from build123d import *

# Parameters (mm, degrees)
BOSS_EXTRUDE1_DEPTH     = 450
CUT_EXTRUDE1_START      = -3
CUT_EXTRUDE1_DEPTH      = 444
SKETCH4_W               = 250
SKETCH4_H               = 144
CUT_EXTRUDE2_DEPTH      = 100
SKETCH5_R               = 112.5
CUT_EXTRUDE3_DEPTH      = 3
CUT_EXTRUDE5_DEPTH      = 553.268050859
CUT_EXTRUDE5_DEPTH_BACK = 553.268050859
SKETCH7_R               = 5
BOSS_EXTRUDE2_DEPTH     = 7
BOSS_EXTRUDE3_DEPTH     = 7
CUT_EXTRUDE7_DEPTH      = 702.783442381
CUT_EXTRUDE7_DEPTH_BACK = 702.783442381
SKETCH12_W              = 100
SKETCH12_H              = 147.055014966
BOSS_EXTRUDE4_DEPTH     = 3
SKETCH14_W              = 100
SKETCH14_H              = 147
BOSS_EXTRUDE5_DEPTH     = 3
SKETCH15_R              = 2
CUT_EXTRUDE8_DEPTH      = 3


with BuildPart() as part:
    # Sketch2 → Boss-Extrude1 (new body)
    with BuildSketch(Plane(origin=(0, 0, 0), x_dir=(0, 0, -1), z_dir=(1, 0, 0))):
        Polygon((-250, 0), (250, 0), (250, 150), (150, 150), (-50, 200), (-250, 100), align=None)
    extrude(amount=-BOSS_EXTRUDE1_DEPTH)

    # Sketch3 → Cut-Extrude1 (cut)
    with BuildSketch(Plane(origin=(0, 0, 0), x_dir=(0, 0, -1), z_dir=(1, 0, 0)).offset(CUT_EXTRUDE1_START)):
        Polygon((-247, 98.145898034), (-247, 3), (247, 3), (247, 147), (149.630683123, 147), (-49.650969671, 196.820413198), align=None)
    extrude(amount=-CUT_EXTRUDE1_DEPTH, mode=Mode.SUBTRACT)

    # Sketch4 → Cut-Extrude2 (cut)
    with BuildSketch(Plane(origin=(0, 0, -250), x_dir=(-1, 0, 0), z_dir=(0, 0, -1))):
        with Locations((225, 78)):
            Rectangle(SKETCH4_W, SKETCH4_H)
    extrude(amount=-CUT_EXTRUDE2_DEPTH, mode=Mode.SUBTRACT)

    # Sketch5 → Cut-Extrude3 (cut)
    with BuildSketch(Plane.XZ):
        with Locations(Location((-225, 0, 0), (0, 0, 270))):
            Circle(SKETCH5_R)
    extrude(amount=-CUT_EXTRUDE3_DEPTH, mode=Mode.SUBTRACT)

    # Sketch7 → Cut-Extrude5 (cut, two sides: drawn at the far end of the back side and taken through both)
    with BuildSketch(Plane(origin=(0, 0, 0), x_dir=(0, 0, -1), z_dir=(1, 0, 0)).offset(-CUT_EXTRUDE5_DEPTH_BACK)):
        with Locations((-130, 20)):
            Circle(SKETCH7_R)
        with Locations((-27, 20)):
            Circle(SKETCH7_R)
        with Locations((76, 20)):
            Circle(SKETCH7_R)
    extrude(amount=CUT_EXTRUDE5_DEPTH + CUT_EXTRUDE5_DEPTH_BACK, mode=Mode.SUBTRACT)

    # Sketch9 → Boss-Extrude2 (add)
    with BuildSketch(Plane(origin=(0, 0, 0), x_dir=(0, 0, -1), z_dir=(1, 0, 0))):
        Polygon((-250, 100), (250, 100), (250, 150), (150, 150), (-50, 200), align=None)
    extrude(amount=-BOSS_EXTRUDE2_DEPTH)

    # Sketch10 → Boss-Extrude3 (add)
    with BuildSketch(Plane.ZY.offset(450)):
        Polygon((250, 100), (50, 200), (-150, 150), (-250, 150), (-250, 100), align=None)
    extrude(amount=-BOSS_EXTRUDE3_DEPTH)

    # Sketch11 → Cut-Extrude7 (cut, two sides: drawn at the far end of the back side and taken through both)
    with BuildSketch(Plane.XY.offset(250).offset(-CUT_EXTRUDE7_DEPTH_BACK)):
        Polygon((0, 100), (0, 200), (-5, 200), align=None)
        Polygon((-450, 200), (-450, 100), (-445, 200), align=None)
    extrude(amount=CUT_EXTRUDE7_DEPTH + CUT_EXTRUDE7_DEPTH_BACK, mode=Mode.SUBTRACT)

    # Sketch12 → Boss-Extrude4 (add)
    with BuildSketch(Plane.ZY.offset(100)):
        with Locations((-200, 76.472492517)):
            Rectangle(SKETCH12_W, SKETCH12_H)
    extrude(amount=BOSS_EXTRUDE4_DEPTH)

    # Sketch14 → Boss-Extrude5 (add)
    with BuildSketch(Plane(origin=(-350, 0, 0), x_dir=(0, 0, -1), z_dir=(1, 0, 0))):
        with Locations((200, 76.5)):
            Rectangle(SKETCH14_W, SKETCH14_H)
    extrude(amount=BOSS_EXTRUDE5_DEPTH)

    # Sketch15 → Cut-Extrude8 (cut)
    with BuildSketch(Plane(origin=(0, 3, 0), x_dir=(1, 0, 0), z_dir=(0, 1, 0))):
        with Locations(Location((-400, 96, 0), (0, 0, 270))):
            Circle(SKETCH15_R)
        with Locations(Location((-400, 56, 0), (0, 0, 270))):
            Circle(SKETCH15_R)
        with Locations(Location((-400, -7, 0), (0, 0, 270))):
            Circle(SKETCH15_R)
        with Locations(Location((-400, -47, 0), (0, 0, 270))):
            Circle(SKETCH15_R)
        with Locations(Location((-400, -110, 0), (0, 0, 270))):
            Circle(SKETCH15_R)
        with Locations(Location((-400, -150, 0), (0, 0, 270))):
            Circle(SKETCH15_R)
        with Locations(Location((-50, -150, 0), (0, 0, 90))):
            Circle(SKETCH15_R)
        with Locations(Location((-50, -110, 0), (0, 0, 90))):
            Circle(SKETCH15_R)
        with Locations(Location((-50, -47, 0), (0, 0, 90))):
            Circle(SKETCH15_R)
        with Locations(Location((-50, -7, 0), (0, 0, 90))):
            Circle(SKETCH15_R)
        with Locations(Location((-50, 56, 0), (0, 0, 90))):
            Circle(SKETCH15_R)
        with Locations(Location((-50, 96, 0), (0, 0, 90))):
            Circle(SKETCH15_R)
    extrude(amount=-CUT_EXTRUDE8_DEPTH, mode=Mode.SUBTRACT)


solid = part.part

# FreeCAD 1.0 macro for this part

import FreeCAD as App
import Part
import Sketcher

V = App.Vector
Q = App.Units.Quantity


def add_polygon(sketch, points):
    """Adds a closed chain of lines whose ends are joined by coincident constraints."""
    first, n = sketch.GeometryCount, len(points)
    for a, b in zip(points, points[1:] + points[:1]):
        sketch.addGeometry(Part.LineSegment(App.Vector(*a, 0), App.Vector(*b, 0)), False)
    for i in range(n):
        sketch.addConstraint(Sketcher.Constraint("Coincident", first + i, 2, first + (i + 1) % n, 1))

doc = App.newDocument("Part")
body = doc.addObject("PartDesign::Body", "Body")

sketch1 = body.newObject("Sketcher::SketchObject", "Sketch")
sketch1.AttachmentSupport = (doc.getObject("YZ_Plane"), [""])
sketch1.MapMode = "FlatFace"
add_polygon(sketch1, [(0, 250), (0, -250), (150, -250), (150, -150), (200, 50), (100, 250)])
sketch1.addConstraint(Sketcher.Constraint("Vertical", 0))
sketch1.addConstraint(Sketcher.Constraint("Horizontal", 1))
sketch1.addConstraint(Sketcher.Constraint("Vertical", 2))
sketch1.addConstraint(Sketcher.Constraint("Horizontal", 5))
sketch1.addConstraint(Sketcher.Constraint("Symmetric", 0, 2, 5, 2, -1, 1))
sketch1.addConstraint(Sketcher.Constraint("Equal", 5, 2))
sketch1.addConstraint(Sketcher.Constraint("DistanceX", 1, 1, 1, 2, Q("150 mm")))
sketch1.addConstraint(Sketcher.Constraint("DistanceX", 5, 2, 5, 1, Q("100 mm")))
sketch1.addConstraint(Sketcher.Constraint("DistanceY", 0, 2, 0, 1, Q("500 mm")))
sketch1.addConstraint(Sketcher.Constraint("DistanceX", -1, 1, 3, 2, Q("200 mm")))
sketch1.addConstraint(Sketcher.Constraint("DistanceY", -1, 1, 3, 2, Q("50 mm")))
pad1 = body.newObject("PartDesign::Pad", "Pad")
pad1.Profile = sketch1
pad1.Length = 450
pad1.Reversed = True

sketch2 = body.newObject("Sketcher::SketchObject", "Sketch001")
sketch2.AttachmentSupport = (doc.getObject("YZ_Plane"), [""])
sketch2.MapMode = "FlatFace"
sketch2.AttachmentOffset = App.Placement(V(0, 0, -3), App.Rotation())
add_polygon(sketch2, [(98.145898, 247), (3, 247), (3, -247), (147, -247), (147, -149.630683), (196.820413, 49.65097)])
sketch2.addConstraint(Sketcher.Constraint("Horizontal", 0))
sketch2.addConstraint(Sketcher.Constraint("Vertical", 1))
sketch2.addConstraint(Sketcher.Constraint("Horizontal", 2))
sketch2.addConstraint(Sketcher.Constraint("Vertical", 3))
sketch2.addConstraint(Sketcher.Constraint("DistanceX", 2, 1, 2, 2, Q("144 mm")))
sketch2.addConstraint(Sketcher.Constraint("DistanceY", 1, 2, 1, 1, Q("494 mm")))
sketch2.addConstraint(Sketcher.Constraint("DistanceX", -1, 1, 0, 2, Q("3 mm")))
sketch2.addConstraint(Sketcher.Constraint("DistanceY", -1, 1, 0, 2, Q("247 mm")))
sketch2.addConstraint(Sketcher.Constraint("DistanceX", 0, 2, 0, 1, Q("95.145898 mm")))
sketch2.addConstraint(Sketcher.Constraint("DistanceY", 3, 1, 3, 2, Q("97.369317 mm")))
sketch2.addConstraint(Sketcher.Constraint("DistanceY", -1, 1, 4, 2, Q("49.65097 mm")))
sketch2.addConstraint(Sketcher.Constraint("Distance", 4, Q("205.414826 mm")))
pocket1 = body.newObject("PartDesign::Pocket", "Pocket")
pocket1.Profile = sketch2
pocket1.Length = 444

sketch3 = body.newObject("Sketcher::SketchObject", "Sketch002")
sketch3.AttachmentSupport = (doc.getObject("XY_Plane"), [""])
sketch3.MapMode = "FlatFace"
sketch3.AttachmentOffset = App.Placement(V(0, 0, -250), App.Rotation())
add_polygon(sketch3, [(-100, 150), (-100, 6), (-350, 6), (-350, 150)])
sketch3.addConstraint(Sketcher.Constraint("Vertical", 0))
sketch3.addConstraint(Sketcher.Constraint("Horizontal", 1))
sketch3.addConstraint(Sketcher.Constraint("Vertical", 2))
sketch3.addConstraint(Sketcher.Constraint("Horizontal", 3))
sketch3.addConstraint(Sketcher.Constraint("DistanceX", 1, 2, 1, 1, Q("250 mm")))
sketch3.addConstraint(Sketcher.Constraint("DistanceY", 0, 2, 0, 1, Q("144 mm")))
sketch3.addConstraint(Sketcher.Constraint("DistanceX", 0, 2, -1, 1, Q("100 mm")))
sketch3.addConstraint(Sketcher.Constraint("DistanceY", -1, 1, 0, 2, Q("6 mm")))
pocket2 = body.newObject("PartDesign::Pocket", "Pocket001")
pocket2.Profile = sketch3
pocket2.Length = 100
pocket2.Reversed = True

sketch4 = body.newObject("Sketcher::SketchObject", "Sketch003")
sketch4.AttachmentSupport = (doc.getObject("XZ_Plane"), [""])
sketch4.MapMode = "FlatFace"
sketch4.addGeometry(Part.Circle(V(-225, 0, 0), V(0, 0, 1), 112.5), False)
sketch4.addConstraint(Sketcher.Constraint("PointOnObject", 0, 3, -1))
sketch4.addConstraint(Sketcher.Constraint("Diameter", 0, Q("225 mm")))
sketch4.addConstraint(Sketcher.Constraint("DistanceX", 0, 3, -1, 1, Q("225 mm")))
pocket3 = body.newObject("PartDesign::Pocket", "Pocket002")
pocket3.Profile = sketch4
pocket3.Length = 3

sketch5 = body.newObject("Sketcher::SketchObject", "Sketch004")
sketch5.AttachmentSupport = (doc.getObject("YZ_Plane"), [""])
sketch5.MapMode = "FlatFace"
sketch5.addGeometry(Part.Circle(V(20, 130, 0), V(0, 0, 1), 5), False)
sketch5.addGeometry(Part.Circle(V(20, 27, 0), V(0, 0, 1), 5), False)
sketch5.addGeometry(Part.Circle(V(20, -76, 0), V(0, 0, 1), 5), False)
sketch5.addConstraint(Sketcher.Constraint("Equal", 0, 1))
sketch5.addConstraint(Sketcher.Constraint("Equal", 1, 2))
sketch5.addConstraint(Sketcher.Constraint("Vertical", 0, 3, 1, 3))
sketch5.addConstraint(Sketcher.Constraint("Vertical", 1, 3, 2, 3))
sketch5.addConstraint(Sketcher.Constraint("Diameter", 0, Q("10 mm")))
sketch5.addConstraint(Sketcher.Constraint("DistanceX", -1, 1, 0, 3, Q("20 mm")))
sketch5.addConstraint(Sketcher.Constraint("DistanceY", -1, 1, 0, 3, Q("130 mm")))
sketch5.addConstraint(Sketcher.Constraint("DistanceY", -1, 1, 1, 3, Q("27 mm")))
sketch5.addConstraint(Sketcher.Constraint("DistanceY", 2, 3, -1, 1, Q("76 mm")))
pocket4 = body.newObject("PartDesign::Pocket", "Pocket003")
pocket4.Profile = sketch5
pocket4.Type = "ThroughAll"
pocket4.Midplane = True

sketch6 = body.newObject("Sketcher::SketchObject", "Sketch005")
sketch6.AttachmentSupport = (doc.getObject("YZ_Plane"), [""])
sketch6.MapMode = "FlatFace"
add_polygon(sketch6, [(100, 250), (100, -250), (150, -250), (150, -150), (200, 50)])
sketch6.addConstraint(Sketcher.Constraint("Vertical", 0))
sketch6.addConstraint(Sketcher.Constraint("Horizontal", 1))
sketch6.addConstraint(Sketcher.Constraint("Vertical", 2))
sketch6.addConstraint(Sketcher.Constraint("DistanceX", 1, 1, 1, 2, Q("50 mm")))
sketch6.addConstraint(Sketcher.Constraint("DistanceY", 0, 2, 0, 1, Q("500 mm")))
sketch6.addConstraint(Sketcher.Constraint("DistanceY", 2, 1, 2, 2, Q("100 mm")))
sketch6.addConstraint(Sketcher.Constraint("DistanceX", -1, 1, 0, 2, Q("100 mm")))
sketch6.addConstraint(Sketcher.Constraint("DistanceY", 0, 2, -1, 1, Q("250 mm")))
sketch6.addConstraint(Sketcher.Constraint("DistanceX", -1, 1, 3, 2, Q("200 mm")))
sketch6.addConstraint(Sketcher.Constraint("DistanceY", -1, 1, 3, 2, Q("50 mm")))
pad2 = body.newObject("PartDesign::Pad", "Pad001")
pad2.Profile = sketch6
pad2.Length = 7
pad2.Reversed = True

sketch7 = body.newObject("Sketcher::SketchObject", "Sketch006")
sketch7.AttachmentSupport = (doc.getObject("YZ_Plane"), [""])
sketch7.MapMode = "FlatFace"
sketch7.AttachmentOffset = App.Placement(V(0, 0, -450), App.Rotation())
add_polygon(sketch7, [(100, 250), (200, 50), (150, -150), (150, -250), (100, -250)])
sketch7.addConstraint(Sketcher.Constraint("Vertical", 2))
sketch7.addConstraint(Sketcher.Constraint("Horizontal", 3))
sketch7.addConstraint(Sketcher.Constraint("Vertical", 4))
sketch7.addConstraint(Sketcher.Constraint("DistanceX", 3, 2, 3, 1, Q("50 mm")))
sketch7.addConstraint(Sketcher.Constraint("DistanceY", 2, 2, 2, 1, Q("100 mm")))
sketch7.addConstraint(Sketcher.Constraint("DistanceY", 4, 1, 4, 2, Q("500 mm")))
sketch7.addConstraint(Sketcher.Constraint("DistanceX", -1, 1, 0, 2, Q("200 mm")))
sketch7.addConstraint(Sketcher.Constraint("DistanceY", -1, 1, 0, 2, Q("50 mm")))
sketch7.addConstraint(Sketcher.Constraint("DistanceX", -1, 1, 1, 2, Q("150 mm")))
sketch7.addConstraint(Sketcher.Constraint("DistanceY", 1, 2, -1, 1, Q("150 mm")))
pad3 = body.newObject("PartDesign::Pad", "Pad002")
pad3.Profile = sketch7
pad3.Length = 7

sketch8 = body.newObject("Sketcher::SketchObject", "Sketch007")
sketch8.AttachmentSupport = (doc.getObject("XY_Plane"), [""])
sketch8.MapMode = "FlatFace"
sketch8.AttachmentOffset = App.Placement(V(0, 0, 250), App.Rotation())
add_polygon(sketch8, [(0, 100), (0, 200), (-5, 200)])
add_polygon(sketch8, [(-450, 200), (-450, 100), (-445, 200)])
sketch8.addConstraint(Sketcher.Constraint("Vertical", 0))
sketch8.addConstraint(Sketcher.Constraint("Horizontal", 1))
sketch8.addConstraint(Sketcher.Constraint("Vertical", 3))
sketch8.addConstraint(Sketcher.Constraint("Horizontal", 5))
sketch8.addConstraint(Sketcher.Constraint("PointOnObject", 0, 2, -2))
sketch8.addConstraint(Sketcher.Constraint("Horizontal", 2, 2, 3, 2))
sketch8.addConstraint(Sketcher.Constraint("Horizontal", 1, 2, 4, 2))
sketch8.addConstraint(Sketcher.Constraint("Equal", 1, 5))
sketch8.addConstraint(Sketcher.Constraint("DistanceX", 1, 2, 1, 1, Q("5 mm")))
sketch8.addConstraint(Sketcher.Constraint("DistanceY", 0, 1, 0, 2, Q("100 mm")))
sketch8.addConstraint(Sketcher.Constraint("DistanceY", -1, 1, 0, 2, Q("200 mm")))
sketch8.addConstraint(Sketcher.Constraint("DistanceX", 3, 2, -1, 1, Q("450 mm")))
pocket5 = body.newObject("PartDesign::Pocket", "Pocket004")
pocket5.Profile = sketch8
pocket5.Type = "ThroughAll"
pocket5.Midplane = True

sketch9 = body.newObject("Sketcher::SketchObject", "Sketch008")
sketch9.AttachmentSupport = (doc.getObject("YZ_Plane"), [""])
sketch9.MapMode = "FlatFace"
sketch9.AttachmentOffset = App.Placement(V(0, 0, -100), App.Rotation())
add_polygon(sketch9, [(150, -250), (2.944985, -250), (2.944985, -150), (150, -150)])
sketch9.addConstraint(Sketcher.Constraint("Horizontal", 0))
sketch9.addConstraint(Sketcher.Constraint("Vertical", 1))
sketch9.addConstraint(Sketcher.Constraint("Horizontal", 2))
sketch9.addConstraint(Sketcher.Constraint("Vertical", 3))
sketch9.addConstraint(Sketcher.Constraint("DistanceY", 1, 1, 1, 2, Q("100 mm")))
sketch9.addConstraint(Sketcher.Constraint("DistanceY", 0, 2, -1, 1, Q("250 mm")))
sketch9.addConstraint(Sketcher.Constraint("DistanceX", -1, 1, 2, 2, Q("150 mm")))
sketch9.addConstraint(Sketcher.Constraint("DistanceX", 0, 2, 0, 1, Q("147.055015 mm")))
pad4 = body.newObject("PartDesign::Pad", "Pad003")
pad4.Profile = sketch9
pad4.Length = 3
pad4.Reversed = True

sketch10 = body.newObject("Sketcher::SketchObject", "Sketch009")
sketch10.AttachmentSupport = (doc.getObject("YZ_Plane"), [""])
sketch10.MapMode = "FlatFace"
sketch10.AttachmentOffset = App.Placement(V(0, 0, -350), App.Rotation())
add_polygon(sketch10, [(150, -150), (3, -150), (3, -250), (150, -250)])
sketch10.addConstraint(Sketcher.Constraint("Horizontal", 0))
sketch10.addConstraint(Sketcher.Constraint("Vertical", 1))
sketch10.addConstraint(Sketcher.Constraint("Horizontal", 2))
sketch10.addConstraint(Sketcher.Constraint("Vertical", 3))
sketch10.addConstraint(Sketcher.Constraint("DistanceX", 0, 2, 0, 1, Q("147 mm")))
sketch10.addConstraint(Sketcher.Constraint("DistanceY", 1, 2, 1, 1, Q("100 mm")))
sketch10.addConstraint(Sketcher.Constraint("DistanceX", -1, 1, 0, 2, Q("3 mm")))
sketch10.addConstraint(Sketcher.Constraint("DistanceY", 0, 2, -1, 1, Q("150 mm")))
pad5 = body.newObject("PartDesign::Pad", "Pad004")
pad5.Profile = sketch10
pad5.Length = 3

sketch11 = body.newObject("Sketcher::SketchObject", "Sketch010")
sketch11.AttachmentSupport = (doc.getObject("XZ_Plane"), [""])
sketch11.MapMode = "FlatFace"
sketch11.AttachmentOffset = App.Placement(V(0, 0, -3), App.Rotation())
sketch11.addGeometry(Part.Circle(V(-400, -96, 0), V(0, 0, 1), 2), False)
sketch11.addGeometry(Part.Circle(V(-400, -56, 0), V(0, 0, 1), 2), False)
sketch11.addGeometry(Part.Circle(V(-400, 7, 0), V(0, 0, 1), 2), False)
sketch11.addGeometry(Part.Circle(V(-400, 47, 0), V(0, 0, 1), 2), False)
sketch11.addGeometry(Part.Circle(V(-400, 110, 0), V(0, 0, 1), 2), False)
sketch11.addGeometry(Part.Circle(V(-400, 150, 0), V(0, 0, 1), 2), False)
sketch11.addGeometry(Part.Circle(V(-50, 150, 0), V(0, 0, 1), 2), False)
sketch11.addGeometry(Part.Circle(V(-50, 110, 0), V(0, 0, 1), 2), False)
sketch11.addGeometry(Part.Circle(V(-50, 47, 0), V(0, 0, 1), 2), False)
sketch11.addGeometry(Part.Circle(V(-50, 7, 0), V(0, 0, 1), 2), False)
sketch11.addGeometry(Part.Circle(V(-50, -56, 0), V(0, 0, 1), 2), False)
sketch11.addGeometry(Part.Circle(V(-50, -96, 0), V(0, 0, 1), 2), False)
sketch11.addConstraint(Sketcher.Constraint("Equal", 0, 1))
sketch11.addConstraint(Sketcher.Constraint("Equal", 1, 2))
sketch11.addConstraint(Sketcher.Constraint("Equal", 2, 3))
sketch11.addConstraint(Sketcher.Constraint("Equal", 3, 4))
sketch11.addConstraint(Sketcher.Constraint("Equal", 4, 5))
sketch11.addConstraint(Sketcher.Constraint("Equal", 5, 6))
sketch11.addConstraint(Sketcher.Constraint("Equal", 6, 7))
sketch11.addConstraint(Sketcher.Constraint("Equal", 7, 8))
sketch11.addConstraint(Sketcher.Constraint("Equal", 8, 9))
sketch11.addConstraint(Sketcher.Constraint("Equal", 9, 10))
sketch11.addConstraint(Sketcher.Constraint("Equal", 10, 11))
sketch11.addConstraint(Sketcher.Constraint("Horizontal", 5, 3, 6, 3))
sketch11.addConstraint(Sketcher.Constraint("Horizontal", 4, 3, 7, 3))
sketch11.addConstraint(Sketcher.Constraint("Horizontal", 3, 3, 8, 3))
sketch11.addConstraint(Sketcher.Constraint("Horizontal", 2, 3, 9, 3))
sketch11.addConstraint(Sketcher.Constraint("Horizontal", 1, 3, 10, 3))
sketch11.addConstraint(Sketcher.Constraint("Horizontal", 0, 3, 11, 3))
sketch11.addConstraint(Sketcher.Constraint("Vertical", 0, 3, 1, 3))
sketch11.addConstraint(Sketcher.Constraint("Vertical", 1, 3, 2, 3))
sketch11.addConstraint(Sketcher.Constraint("Vertical", 2, 3, 3, 3))
sketch11.addConstraint(Sketcher.Constraint("Vertical", 3, 3, 4, 3))
sketch11.addConstraint(Sketcher.Constraint("Vertical", 4, 3, 5, 3))
sketch11.addConstraint(Sketcher.Constraint("Vertical", 6, 3, 7, 3))
sketch11.addConstraint(Sketcher.Constraint("Vertical", 7, 3, 8, 3))
sketch11.addConstraint(Sketcher.Constraint("Vertical", 8, 3, 9, 3))
sketch11.addConstraint(Sketcher.Constraint("Vertical", 9, 3, 10, 3))
sketch11.addConstraint(Sketcher.Constraint("Vertical", 10, 3, 11, 3))
sketch11.addConstraint(Sketcher.Constraint("Diameter", 0, Q("4 mm")))
sketch11.addConstraint(Sketcher.Constraint("DistanceX", 0, 3, -1, 1, Q("400 mm")))
sketch11.addConstraint(Sketcher.Constraint("DistanceY", 0, 3, -1, 1, Q("96 mm")))
sketch11.addConstraint(Sketcher.Constraint("DistanceY", 1, 3, -1, 1, Q("56 mm")))
sketch11.addConstraint(Sketcher.Constraint("DistanceY", -1, 1, 2, 3, Q("7 mm")))
sketch11.addConstraint(Sketcher.Constraint("DistanceY", -1, 1, 3, 3, Q("47 mm")))
sketch11.addConstraint(Sketcher.Constraint("DistanceY", -1, 1, 4, 3, Q("110 mm")))
sketch11.addConstraint(Sketcher.Constraint("DistanceY", -1, 1, 5, 3, Q("150 mm")))
sketch11.addConstraint(Sketcher.Constraint("DistanceX", 6, 3, -1, 1, Q("50 mm")))
pocket6 = body.newObject("PartDesign::Pocket", "Pocket005")
pocket6.Profile = sketch11
pocket6.Length = 3
pocket6.Reversed = True

doc.recompute()
